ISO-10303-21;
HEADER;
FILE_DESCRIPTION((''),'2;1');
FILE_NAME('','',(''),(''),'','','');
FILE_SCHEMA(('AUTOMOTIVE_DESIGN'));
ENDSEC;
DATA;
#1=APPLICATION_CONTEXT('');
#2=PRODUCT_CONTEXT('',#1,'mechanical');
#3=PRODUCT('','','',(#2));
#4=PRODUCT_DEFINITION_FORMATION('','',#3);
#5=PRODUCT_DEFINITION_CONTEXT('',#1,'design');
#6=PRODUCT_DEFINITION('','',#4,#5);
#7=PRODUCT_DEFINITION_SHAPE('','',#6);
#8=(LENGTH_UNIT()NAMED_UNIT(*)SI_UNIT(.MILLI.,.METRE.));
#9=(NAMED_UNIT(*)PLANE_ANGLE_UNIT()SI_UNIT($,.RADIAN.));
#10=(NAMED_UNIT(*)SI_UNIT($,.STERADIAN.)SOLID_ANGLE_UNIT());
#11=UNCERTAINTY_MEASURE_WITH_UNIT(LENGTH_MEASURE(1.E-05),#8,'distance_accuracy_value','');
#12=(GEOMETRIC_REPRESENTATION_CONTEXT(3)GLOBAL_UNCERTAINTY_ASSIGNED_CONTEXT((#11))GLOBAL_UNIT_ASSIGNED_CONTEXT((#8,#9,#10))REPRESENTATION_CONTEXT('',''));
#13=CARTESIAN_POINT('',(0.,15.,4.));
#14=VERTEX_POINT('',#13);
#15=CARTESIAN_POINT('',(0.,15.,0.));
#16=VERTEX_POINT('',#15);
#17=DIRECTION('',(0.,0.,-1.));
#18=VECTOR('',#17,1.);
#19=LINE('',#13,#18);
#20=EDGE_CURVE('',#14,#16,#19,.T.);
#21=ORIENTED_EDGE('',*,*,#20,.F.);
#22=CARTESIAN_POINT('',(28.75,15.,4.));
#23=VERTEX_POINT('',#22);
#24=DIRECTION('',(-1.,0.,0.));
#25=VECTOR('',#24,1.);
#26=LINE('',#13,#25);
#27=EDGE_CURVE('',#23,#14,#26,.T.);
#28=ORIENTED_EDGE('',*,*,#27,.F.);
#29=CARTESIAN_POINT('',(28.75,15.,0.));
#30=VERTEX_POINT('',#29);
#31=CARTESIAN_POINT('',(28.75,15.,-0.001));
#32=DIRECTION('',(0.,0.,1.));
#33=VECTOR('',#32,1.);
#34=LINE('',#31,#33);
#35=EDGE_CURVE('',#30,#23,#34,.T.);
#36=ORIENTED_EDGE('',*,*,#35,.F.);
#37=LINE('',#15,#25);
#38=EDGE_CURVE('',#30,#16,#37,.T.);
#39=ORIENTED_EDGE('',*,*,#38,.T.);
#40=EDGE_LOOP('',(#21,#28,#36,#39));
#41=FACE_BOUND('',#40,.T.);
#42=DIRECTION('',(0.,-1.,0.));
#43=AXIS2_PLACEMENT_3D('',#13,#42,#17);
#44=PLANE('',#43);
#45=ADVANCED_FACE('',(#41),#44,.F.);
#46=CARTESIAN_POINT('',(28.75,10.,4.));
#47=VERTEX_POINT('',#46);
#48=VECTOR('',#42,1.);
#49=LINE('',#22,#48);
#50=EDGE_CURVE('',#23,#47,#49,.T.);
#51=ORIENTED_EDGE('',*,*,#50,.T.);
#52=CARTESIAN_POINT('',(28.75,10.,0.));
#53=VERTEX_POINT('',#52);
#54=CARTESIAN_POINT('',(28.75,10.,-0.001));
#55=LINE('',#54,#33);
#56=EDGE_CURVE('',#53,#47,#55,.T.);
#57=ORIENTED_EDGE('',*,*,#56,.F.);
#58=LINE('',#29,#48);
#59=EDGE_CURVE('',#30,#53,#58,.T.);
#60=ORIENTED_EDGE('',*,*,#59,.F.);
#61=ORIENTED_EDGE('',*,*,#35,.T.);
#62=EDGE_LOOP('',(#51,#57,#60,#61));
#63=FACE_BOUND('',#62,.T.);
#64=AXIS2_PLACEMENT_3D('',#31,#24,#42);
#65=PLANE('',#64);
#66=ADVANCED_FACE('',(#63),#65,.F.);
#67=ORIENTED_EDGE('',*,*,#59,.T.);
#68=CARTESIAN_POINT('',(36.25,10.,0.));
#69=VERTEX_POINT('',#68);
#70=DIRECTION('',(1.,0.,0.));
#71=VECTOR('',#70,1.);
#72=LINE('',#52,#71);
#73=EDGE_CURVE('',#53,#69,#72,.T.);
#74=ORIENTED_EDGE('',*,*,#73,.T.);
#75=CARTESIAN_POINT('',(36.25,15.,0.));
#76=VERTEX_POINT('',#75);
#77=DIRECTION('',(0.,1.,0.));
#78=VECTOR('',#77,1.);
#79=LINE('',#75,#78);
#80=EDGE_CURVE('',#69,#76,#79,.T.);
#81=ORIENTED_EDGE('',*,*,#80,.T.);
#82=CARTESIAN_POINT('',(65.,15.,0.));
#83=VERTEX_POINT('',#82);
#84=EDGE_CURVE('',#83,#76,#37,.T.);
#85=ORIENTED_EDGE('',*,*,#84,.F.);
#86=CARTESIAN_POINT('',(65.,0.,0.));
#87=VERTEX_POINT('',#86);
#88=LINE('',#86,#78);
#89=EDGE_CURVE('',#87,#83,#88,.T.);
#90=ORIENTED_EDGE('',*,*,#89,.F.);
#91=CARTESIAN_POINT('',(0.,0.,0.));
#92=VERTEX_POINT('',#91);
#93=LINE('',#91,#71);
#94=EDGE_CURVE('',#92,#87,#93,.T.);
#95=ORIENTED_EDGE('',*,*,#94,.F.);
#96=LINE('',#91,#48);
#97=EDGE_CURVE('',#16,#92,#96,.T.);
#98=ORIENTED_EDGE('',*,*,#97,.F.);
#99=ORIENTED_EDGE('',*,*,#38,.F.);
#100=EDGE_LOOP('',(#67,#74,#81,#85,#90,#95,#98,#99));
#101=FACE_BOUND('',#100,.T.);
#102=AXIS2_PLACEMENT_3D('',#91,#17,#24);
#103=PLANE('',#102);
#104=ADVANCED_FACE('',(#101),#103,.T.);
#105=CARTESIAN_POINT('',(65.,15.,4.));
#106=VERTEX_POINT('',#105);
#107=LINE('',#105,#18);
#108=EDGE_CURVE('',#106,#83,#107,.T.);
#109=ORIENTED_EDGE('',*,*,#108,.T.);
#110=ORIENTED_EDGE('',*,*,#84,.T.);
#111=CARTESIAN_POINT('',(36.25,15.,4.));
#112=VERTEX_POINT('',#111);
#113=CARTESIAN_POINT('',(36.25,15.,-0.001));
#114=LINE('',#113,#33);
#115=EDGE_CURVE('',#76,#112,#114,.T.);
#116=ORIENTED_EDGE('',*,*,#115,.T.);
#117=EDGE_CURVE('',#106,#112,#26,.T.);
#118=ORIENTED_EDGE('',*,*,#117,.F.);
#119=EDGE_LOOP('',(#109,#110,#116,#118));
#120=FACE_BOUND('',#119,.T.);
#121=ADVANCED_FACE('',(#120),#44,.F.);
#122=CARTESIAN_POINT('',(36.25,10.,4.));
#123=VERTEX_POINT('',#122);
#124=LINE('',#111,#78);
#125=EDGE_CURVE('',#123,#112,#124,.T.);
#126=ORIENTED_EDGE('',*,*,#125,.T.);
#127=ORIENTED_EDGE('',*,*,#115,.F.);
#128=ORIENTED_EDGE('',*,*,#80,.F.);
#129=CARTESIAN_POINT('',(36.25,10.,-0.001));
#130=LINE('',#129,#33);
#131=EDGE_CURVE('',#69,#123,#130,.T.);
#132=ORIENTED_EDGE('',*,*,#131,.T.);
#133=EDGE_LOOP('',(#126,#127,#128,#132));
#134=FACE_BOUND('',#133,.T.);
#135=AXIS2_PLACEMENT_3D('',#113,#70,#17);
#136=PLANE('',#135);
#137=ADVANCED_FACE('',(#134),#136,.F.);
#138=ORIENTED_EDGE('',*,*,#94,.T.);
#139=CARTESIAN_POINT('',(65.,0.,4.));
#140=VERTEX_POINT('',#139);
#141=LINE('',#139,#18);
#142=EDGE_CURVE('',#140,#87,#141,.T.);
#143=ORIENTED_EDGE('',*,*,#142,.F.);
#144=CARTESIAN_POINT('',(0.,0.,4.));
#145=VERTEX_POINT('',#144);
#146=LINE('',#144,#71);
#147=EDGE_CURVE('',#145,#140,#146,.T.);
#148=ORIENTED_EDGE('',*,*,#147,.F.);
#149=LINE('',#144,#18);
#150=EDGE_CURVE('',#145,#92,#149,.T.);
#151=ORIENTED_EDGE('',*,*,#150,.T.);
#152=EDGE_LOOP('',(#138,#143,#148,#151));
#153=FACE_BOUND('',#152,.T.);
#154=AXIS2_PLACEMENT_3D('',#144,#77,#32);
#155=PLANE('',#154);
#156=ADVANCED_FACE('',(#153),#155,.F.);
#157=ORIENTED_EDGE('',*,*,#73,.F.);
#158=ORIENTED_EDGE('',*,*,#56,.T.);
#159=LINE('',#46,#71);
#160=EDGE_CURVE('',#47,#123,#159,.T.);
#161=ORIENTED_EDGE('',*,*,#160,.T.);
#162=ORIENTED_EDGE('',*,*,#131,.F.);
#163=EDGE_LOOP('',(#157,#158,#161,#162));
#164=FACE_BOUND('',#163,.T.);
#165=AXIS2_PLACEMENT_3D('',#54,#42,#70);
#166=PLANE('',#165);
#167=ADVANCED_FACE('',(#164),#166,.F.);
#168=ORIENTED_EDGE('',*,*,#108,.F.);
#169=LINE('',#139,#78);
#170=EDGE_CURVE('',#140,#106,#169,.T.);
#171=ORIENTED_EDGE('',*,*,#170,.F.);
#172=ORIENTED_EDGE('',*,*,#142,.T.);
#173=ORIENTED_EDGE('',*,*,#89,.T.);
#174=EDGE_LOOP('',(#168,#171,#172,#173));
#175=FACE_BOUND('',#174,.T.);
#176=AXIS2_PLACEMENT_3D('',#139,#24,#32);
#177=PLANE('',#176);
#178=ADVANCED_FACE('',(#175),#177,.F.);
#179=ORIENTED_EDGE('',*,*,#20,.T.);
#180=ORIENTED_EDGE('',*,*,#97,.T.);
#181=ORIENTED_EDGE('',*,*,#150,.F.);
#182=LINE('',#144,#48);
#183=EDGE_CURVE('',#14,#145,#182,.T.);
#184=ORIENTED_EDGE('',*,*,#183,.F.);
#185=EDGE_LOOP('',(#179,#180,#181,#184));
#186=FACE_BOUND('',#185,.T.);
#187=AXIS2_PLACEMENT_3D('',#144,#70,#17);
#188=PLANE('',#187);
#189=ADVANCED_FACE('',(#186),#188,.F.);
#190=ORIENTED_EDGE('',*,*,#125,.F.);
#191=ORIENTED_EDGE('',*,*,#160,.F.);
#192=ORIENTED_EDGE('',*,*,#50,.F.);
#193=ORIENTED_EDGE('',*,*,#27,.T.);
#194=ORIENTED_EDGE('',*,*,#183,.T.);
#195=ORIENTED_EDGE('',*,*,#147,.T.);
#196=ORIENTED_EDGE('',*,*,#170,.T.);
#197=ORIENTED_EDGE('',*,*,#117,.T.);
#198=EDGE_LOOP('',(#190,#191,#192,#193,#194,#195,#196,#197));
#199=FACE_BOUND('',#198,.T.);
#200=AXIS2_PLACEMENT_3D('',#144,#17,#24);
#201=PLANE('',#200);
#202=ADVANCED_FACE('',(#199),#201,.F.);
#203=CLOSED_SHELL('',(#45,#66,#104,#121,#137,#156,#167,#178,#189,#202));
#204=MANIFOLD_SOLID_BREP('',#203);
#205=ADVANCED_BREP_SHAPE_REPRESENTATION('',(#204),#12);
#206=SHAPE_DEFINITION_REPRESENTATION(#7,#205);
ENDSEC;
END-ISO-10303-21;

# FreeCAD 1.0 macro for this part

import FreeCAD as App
import Part
import Sketcher

V = App.Vector

doc = App.newDocument("Part")
body = doc.addObject("PartDesign::Body", "Body")

sketch1 = body.newObject("Sketcher::SketchObject", "Sketch")
sketch1.AttachmentSupport = (doc.getObject("XY_Plane"), [""])
sketch1.MapMode = "FlatFace"
sketch1.addGeometry(Part.LineSegment(V(0, 15, 0), V(0, 0, 0)), False)
sketch1.addGeometry(Part.LineSegment(V(0, 0, 0), V(65, 0, 0)), False)
sketch1.addGeometry(Part.LineSegment(V(65, 0, 0), V(65, 15, 0)), False)
sketch1.addGeometry(Part.LineSegment(V(65, 15, 0), V(0, 15, 0)), False)
sketch1.addConstraint(Sketcher.Constraint("Coincident", 0, 2, 1, 1))
sketch1.addConstraint(Sketcher.Constraint("Coincident", 1, 2, 2, 1))
sketch1.addConstraint(Sketcher.Constraint("Coincident", 2, 2, 3, 1))
sketch1.addConstraint(Sketcher.Constraint("Coincident", 3, 2, 0, 1))
sketch1.addConstraint(Sketcher.Constraint("Vertical", 0))
sketch1.addConstraint(Sketcher.Constraint("Horizontal", 1))
sketch1.addConstraint(Sketcher.Constraint("Vertical", 2))
sketch1.addConstraint(Sketcher.Constraint("Horizontal", 3))
sketch1.addConstraint(Sketcher.Constraint("Coincident", 0, 2, -1, 1))
sketch1.addConstraint(Sketcher.Constraint("DistanceX", 1, 1, 1, 2, 65.0))
sketch1.addConstraint(Sketcher.Constraint("DistanceY", 0, 2, 0, 1, 15.0))
pad1 = body.newObject("PartDesign::Pad", "Pad")
pad1.Profile = sketch1
pad1.Length = 4

sketch2 = body.newObject("Sketcher::SketchObject", "Sketch001")
sketch2.AttachmentSupport = (doc.getObject("XY_Plane"), [""])
sketch2.MapMode = "FlatFace"
sketch2.AttachmentOffset = App.Placement(V(0, 0, 4), App.Rotation())
sketch2.addGeometry(Part.LineSegment(V(29, 15, 0), V(29, 10, 0)), False)
sketch2.addGeometry(Part.LineSegment(V(29, 10, 0), V(36, 10, 0)), False)
sketch2.addGeometry(Part.LineSegment(V(36, 10, 0), V(36, 15, 0)), False)
sketch2.addGeometry(Part.LineSegment(V(36, 15, 0), V(29, 15, 0)), False)
sketch2.addConstraint(Sketcher.Constraint("Coincident", 0, 2, 1, 1))
sketch2.addConstraint(Sketcher.Constraint("Coincident", 1, 2, 2, 1))
sketch2.addConstraint(Sketcher.Constraint("Coincident", 2, 2, 3, 1))
sketch2.addConstraint(Sketcher.Constraint("Coincident", 3, 2, 0, 1))
sketch2.addConstraint(Sketcher.Constraint("Vertical", 0))
sketch2.addConstraint(Sketcher.Constraint("Horizontal", 1))
sketch2.addConstraint(Sketcher.Constraint("Vertical", 2))
sketch2.addConstraint(Sketcher.Constraint("Horizontal", 3))
sketch2.addConstraint(Sketcher.Constraint("DistanceY", 0, 2, 0, 1, 5.0))
sketch2.addConstraint(Sketcher.Constraint("DistanceX", 1, 1, 1, 2, 7.5))
sketch2.addConstraint(Sketcher.Constraint("DistanceY", -1, 1, 0, 2, 10.0))
sketch2.addConstraint(Sketcher.Constraint("DistanceX", -1, 1, 0, 2, 28.75))
pocket1 = body.newObject("PartDesign::Pocket", "Pocket")
pocket1.Profile = sketch2
pocket1.Type = "UpToFirst"

doc.recompute()
